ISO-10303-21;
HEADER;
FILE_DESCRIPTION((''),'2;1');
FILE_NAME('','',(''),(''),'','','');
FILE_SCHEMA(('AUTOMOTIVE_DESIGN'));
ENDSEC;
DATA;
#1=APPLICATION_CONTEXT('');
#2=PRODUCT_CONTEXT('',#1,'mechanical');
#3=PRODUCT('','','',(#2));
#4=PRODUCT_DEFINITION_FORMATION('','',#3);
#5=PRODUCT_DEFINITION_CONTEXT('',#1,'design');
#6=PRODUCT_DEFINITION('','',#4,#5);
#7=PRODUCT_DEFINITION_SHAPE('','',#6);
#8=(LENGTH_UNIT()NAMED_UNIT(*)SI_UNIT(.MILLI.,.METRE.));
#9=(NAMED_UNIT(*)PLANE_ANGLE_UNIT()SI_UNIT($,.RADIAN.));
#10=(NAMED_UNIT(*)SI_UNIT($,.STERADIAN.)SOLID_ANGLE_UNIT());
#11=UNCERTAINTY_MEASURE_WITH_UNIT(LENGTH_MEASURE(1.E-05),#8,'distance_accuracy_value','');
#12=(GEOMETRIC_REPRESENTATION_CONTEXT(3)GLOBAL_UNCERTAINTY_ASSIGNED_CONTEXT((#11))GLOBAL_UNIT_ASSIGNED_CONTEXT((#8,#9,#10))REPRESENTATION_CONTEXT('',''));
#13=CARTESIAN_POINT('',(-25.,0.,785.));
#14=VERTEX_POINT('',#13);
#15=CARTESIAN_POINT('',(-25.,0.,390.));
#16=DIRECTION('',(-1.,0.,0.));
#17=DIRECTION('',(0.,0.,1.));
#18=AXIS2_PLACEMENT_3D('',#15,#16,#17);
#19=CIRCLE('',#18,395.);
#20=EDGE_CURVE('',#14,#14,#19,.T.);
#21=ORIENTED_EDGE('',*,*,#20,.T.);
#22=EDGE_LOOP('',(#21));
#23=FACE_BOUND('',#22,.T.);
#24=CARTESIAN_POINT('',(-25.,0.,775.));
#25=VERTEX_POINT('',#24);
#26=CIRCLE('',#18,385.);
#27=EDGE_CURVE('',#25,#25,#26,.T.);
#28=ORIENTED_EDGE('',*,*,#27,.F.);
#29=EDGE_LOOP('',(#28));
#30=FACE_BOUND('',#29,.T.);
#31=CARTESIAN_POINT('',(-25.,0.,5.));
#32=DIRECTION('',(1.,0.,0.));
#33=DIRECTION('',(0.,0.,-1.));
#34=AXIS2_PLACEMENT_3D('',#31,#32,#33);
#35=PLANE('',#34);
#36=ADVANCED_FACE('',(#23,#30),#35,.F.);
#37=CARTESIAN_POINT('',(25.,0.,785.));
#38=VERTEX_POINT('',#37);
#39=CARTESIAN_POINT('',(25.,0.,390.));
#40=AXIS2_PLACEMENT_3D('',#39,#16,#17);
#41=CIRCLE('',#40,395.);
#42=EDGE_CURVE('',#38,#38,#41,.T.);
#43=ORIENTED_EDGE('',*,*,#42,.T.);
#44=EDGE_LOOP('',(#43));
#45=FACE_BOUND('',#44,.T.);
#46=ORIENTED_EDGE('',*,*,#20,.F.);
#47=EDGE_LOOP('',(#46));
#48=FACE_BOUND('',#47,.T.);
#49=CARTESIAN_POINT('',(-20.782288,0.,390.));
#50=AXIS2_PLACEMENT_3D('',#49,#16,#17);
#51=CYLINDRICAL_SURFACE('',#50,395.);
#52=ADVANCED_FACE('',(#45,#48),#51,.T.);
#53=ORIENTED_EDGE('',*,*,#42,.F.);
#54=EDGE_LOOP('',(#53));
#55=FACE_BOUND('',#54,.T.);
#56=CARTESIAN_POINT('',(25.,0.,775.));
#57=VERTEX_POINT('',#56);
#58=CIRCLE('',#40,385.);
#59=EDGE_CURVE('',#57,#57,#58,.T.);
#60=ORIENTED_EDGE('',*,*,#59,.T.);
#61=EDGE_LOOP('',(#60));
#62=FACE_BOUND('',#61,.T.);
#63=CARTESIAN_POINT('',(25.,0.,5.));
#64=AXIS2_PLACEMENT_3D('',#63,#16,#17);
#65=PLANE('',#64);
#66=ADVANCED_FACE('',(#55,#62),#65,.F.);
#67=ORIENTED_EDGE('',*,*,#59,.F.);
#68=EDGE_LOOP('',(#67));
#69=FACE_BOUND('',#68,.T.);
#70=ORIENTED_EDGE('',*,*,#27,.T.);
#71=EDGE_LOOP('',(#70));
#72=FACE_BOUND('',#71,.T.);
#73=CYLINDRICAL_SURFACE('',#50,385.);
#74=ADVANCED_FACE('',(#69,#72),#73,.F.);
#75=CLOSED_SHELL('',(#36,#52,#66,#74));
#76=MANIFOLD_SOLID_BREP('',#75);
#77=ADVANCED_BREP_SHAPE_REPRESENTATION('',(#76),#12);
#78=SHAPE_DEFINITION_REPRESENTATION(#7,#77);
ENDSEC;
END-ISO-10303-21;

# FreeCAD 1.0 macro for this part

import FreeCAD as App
import Part
import Sketcher
from FreeCAD import Vector
Q = App.Units.Quantity


def add_polygon(sketch, points):
    """Adds a closed chain of lines whose ends are joined by coincident constraints."""
    first, n = sketch.GeometryCount, len(points)
    for a, b in zip(points, points[1:] + points[:1]):
        sketch.addGeometry(Part.LineSegment(App.Vector(*a, 0), App.Vector(*b, 0)), False)
    for i in range(n):
        sketch.addConstraint(Sketcher.Constraint("Coincident", first + i, 2, first + (i + 1) % n, 1))

doc = App.newDocument("Part")
params = doc.addObject("Spreadsheet::Sheet", "Params")
for row, (alias, value) in enumerate([
    ("sketch1_width", "50 mm"),
    ("sketch1_height", "10 mm"),
    ("revolution_angle", "360 deg"),
], start=1):
    params.set(f"A{row}", alias)
    params.set(f"B{row}", "=" + value)
    params.setAlias(f"B{row}", alias)

body = doc.addObject("PartDesign::Body", "Body")

sketch1 = body.newObject("Sketcher::SketchObject", "Sketch")
sketch1.AttachmentSupport = (doc.getObject("XZ_Plane"), [""])
sketch1.MapMode = "FlatFace"
add_polygon(sketch1, [(-25, -5), (-25, 5), (25, 5), (25, -5)])
sketch1.addGeometry(Part.LineSegment(Vector(-25, 390, 0), Vector(25, 390, 0)), True)
sketch1.addConstraint([
    Sketcher.Constraint("Vertical", 0),
    Sketcher.Constraint("Horizontal", 1),
    Sketcher.Constraint("Vertical", 2),
    Sketcher.Constraint("Horizontal", 3),
    Sketcher.Constraint("Horizontal", 4),
    Sketcher.Constraint("Symmetric", 0, 2, 2, 2, -1, 1),
    Sketcher.Constraint("Vertical", 3, 2, 4, 1),
    Sketcher.Constraint("Vertical", 2, 2, 4, 2),
    Sketcher.Constraint("DistanceX", 1, 1, 1, 2, Q("50 mm")),
    Sketcher.Constraint("DistanceY", 0, 1, 0, 2, Q("10 mm")),
    Sketcher.Constraint("DistanceY", -1, 1, 4, 1, Q("390 mm")),
])
sketch1.setExpression("Constraints[12]", "Params.sketch1_width")
sketch1.setExpression("Constraints[13]", "Params.sketch1_height")
revolution = body.newObject("PartDesign::Revolution", "Revolution")
revolution.Profile = sketch1
revolution.ReferenceAxis = (sketch1, ["Axis0"])
revolution.setExpression("Angle", "Params.revolution_angle")

doc.recompute()
